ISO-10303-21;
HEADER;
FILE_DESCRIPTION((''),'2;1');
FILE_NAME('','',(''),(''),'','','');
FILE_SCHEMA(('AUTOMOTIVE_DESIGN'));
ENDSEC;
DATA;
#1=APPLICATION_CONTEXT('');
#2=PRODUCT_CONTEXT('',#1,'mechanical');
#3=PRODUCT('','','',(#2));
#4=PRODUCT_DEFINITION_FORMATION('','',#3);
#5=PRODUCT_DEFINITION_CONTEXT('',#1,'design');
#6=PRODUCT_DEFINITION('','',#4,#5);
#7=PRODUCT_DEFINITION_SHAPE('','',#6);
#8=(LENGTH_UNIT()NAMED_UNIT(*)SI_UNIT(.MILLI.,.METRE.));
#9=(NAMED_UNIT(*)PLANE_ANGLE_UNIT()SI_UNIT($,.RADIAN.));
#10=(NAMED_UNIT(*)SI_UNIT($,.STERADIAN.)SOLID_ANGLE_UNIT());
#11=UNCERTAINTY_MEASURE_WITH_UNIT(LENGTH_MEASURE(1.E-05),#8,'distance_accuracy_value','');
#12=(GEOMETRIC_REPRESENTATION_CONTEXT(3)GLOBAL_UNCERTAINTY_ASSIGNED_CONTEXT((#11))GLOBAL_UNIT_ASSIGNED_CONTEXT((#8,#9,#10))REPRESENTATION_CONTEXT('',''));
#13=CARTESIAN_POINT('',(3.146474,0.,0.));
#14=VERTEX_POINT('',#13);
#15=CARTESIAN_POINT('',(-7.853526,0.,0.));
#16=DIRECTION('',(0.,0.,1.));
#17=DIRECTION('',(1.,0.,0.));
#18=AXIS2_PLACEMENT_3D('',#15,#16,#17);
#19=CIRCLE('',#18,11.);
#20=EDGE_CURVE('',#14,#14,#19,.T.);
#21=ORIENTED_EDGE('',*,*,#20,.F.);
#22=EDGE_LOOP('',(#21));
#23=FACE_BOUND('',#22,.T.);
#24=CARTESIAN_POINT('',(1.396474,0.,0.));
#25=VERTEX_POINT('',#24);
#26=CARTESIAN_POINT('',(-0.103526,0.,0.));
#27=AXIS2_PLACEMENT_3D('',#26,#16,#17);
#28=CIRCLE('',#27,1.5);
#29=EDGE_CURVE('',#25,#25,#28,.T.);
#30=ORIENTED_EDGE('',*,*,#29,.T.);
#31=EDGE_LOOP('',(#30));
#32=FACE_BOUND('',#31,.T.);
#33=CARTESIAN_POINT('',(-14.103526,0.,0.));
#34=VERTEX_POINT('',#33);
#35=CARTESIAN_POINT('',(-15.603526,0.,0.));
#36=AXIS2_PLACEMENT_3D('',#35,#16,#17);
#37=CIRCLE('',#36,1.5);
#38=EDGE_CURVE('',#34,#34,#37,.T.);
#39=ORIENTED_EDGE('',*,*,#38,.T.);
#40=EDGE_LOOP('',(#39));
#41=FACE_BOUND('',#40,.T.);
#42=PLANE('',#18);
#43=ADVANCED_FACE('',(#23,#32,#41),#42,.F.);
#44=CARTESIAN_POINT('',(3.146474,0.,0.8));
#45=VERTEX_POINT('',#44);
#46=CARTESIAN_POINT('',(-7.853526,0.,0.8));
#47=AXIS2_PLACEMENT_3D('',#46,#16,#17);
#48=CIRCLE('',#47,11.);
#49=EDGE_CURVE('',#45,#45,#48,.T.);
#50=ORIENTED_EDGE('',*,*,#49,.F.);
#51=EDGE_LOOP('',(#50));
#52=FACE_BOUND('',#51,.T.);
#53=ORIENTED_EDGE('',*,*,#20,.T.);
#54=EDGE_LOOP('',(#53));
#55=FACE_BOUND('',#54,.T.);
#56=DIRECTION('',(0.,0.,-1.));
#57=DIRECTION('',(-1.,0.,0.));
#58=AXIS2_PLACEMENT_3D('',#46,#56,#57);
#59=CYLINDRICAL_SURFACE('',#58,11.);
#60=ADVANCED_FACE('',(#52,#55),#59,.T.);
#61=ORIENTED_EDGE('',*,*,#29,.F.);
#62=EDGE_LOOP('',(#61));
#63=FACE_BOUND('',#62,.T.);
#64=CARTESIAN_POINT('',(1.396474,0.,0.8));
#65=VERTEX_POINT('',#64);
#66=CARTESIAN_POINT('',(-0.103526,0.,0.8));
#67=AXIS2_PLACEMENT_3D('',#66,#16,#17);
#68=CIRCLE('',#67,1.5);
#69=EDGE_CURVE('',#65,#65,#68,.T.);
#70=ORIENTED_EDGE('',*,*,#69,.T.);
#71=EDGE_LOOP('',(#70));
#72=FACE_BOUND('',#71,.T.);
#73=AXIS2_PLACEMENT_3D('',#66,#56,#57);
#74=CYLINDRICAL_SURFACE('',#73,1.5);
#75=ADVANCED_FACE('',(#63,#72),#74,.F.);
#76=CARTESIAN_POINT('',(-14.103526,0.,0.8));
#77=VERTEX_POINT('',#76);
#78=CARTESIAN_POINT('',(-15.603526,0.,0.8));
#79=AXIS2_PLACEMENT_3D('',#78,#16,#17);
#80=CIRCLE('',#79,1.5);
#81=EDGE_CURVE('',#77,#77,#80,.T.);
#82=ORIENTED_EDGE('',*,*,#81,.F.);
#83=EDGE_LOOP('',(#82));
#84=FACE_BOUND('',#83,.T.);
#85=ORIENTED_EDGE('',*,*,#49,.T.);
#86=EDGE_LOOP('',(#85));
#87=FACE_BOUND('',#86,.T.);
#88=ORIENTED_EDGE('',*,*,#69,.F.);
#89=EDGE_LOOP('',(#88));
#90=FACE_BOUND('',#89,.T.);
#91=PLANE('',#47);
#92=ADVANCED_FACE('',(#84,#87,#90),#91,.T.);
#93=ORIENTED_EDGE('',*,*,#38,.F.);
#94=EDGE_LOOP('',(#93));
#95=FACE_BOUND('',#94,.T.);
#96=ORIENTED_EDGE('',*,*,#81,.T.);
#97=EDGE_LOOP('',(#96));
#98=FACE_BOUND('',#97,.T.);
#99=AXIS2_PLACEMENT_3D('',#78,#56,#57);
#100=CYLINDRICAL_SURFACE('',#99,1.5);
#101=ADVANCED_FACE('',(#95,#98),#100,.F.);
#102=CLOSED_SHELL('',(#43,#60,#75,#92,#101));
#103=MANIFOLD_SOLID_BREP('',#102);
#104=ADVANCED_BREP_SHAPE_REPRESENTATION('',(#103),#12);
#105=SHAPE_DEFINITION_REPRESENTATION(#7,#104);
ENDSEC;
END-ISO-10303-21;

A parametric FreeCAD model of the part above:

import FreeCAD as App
import Part
import Sketcher

V = App.Vector

doc = App.newDocument("Part")
body = doc.addObject("PartDesign::Body", "Body")

sketch1 = body.newObject("Sketcher::SketchObject", "Sketch")
sketch1.AttachmentSupport = (doc.getObject("XY_Plane"), [""])
sketch1.MapMode = "FlatFace"
sketch1.addGeometry([
    Part.Circle(V(-7.853526, 0, 0), V(0, 0, 1), 11),
    Part.Circle(V(-15.603526, 0, 0), V(0, 0, 1), 1.5),
    Part.Circle(V(-0.103526, 0, 0), V(0, 0, 1), 1.5),
], False)
sketch1.addConstraint([
    Sketcher.Constraint("Equal", 1, 2),
    Sketcher.Constraint("PointOnObject", 0, 3, -1),
    Sketcher.Constraint("PointOnObject", 1, 3, -1),
    Sketcher.Constraint("PointOnObject", 2, 3, -1),
    Sketcher.Constraint("Diameter", 0, 22.0),
    Sketcher.Constraint("Diameter", 1, 3.0),
    Sketcher.Constraint("DistanceX", 1, 3, 2, 3, 15.5),
    Sketcher.Constraint("DistanceX", 1, 3, 0, 3, 7.75),
    Sketcher.Constraint("DistanceX", 0, 3, -1, 1, 7.853526),
])
pad1 = body.newObject("PartDesign::Pad", "Pad")
pad1.Profile = sketch1
pad1.Length = 0.8

doc.recompute()
